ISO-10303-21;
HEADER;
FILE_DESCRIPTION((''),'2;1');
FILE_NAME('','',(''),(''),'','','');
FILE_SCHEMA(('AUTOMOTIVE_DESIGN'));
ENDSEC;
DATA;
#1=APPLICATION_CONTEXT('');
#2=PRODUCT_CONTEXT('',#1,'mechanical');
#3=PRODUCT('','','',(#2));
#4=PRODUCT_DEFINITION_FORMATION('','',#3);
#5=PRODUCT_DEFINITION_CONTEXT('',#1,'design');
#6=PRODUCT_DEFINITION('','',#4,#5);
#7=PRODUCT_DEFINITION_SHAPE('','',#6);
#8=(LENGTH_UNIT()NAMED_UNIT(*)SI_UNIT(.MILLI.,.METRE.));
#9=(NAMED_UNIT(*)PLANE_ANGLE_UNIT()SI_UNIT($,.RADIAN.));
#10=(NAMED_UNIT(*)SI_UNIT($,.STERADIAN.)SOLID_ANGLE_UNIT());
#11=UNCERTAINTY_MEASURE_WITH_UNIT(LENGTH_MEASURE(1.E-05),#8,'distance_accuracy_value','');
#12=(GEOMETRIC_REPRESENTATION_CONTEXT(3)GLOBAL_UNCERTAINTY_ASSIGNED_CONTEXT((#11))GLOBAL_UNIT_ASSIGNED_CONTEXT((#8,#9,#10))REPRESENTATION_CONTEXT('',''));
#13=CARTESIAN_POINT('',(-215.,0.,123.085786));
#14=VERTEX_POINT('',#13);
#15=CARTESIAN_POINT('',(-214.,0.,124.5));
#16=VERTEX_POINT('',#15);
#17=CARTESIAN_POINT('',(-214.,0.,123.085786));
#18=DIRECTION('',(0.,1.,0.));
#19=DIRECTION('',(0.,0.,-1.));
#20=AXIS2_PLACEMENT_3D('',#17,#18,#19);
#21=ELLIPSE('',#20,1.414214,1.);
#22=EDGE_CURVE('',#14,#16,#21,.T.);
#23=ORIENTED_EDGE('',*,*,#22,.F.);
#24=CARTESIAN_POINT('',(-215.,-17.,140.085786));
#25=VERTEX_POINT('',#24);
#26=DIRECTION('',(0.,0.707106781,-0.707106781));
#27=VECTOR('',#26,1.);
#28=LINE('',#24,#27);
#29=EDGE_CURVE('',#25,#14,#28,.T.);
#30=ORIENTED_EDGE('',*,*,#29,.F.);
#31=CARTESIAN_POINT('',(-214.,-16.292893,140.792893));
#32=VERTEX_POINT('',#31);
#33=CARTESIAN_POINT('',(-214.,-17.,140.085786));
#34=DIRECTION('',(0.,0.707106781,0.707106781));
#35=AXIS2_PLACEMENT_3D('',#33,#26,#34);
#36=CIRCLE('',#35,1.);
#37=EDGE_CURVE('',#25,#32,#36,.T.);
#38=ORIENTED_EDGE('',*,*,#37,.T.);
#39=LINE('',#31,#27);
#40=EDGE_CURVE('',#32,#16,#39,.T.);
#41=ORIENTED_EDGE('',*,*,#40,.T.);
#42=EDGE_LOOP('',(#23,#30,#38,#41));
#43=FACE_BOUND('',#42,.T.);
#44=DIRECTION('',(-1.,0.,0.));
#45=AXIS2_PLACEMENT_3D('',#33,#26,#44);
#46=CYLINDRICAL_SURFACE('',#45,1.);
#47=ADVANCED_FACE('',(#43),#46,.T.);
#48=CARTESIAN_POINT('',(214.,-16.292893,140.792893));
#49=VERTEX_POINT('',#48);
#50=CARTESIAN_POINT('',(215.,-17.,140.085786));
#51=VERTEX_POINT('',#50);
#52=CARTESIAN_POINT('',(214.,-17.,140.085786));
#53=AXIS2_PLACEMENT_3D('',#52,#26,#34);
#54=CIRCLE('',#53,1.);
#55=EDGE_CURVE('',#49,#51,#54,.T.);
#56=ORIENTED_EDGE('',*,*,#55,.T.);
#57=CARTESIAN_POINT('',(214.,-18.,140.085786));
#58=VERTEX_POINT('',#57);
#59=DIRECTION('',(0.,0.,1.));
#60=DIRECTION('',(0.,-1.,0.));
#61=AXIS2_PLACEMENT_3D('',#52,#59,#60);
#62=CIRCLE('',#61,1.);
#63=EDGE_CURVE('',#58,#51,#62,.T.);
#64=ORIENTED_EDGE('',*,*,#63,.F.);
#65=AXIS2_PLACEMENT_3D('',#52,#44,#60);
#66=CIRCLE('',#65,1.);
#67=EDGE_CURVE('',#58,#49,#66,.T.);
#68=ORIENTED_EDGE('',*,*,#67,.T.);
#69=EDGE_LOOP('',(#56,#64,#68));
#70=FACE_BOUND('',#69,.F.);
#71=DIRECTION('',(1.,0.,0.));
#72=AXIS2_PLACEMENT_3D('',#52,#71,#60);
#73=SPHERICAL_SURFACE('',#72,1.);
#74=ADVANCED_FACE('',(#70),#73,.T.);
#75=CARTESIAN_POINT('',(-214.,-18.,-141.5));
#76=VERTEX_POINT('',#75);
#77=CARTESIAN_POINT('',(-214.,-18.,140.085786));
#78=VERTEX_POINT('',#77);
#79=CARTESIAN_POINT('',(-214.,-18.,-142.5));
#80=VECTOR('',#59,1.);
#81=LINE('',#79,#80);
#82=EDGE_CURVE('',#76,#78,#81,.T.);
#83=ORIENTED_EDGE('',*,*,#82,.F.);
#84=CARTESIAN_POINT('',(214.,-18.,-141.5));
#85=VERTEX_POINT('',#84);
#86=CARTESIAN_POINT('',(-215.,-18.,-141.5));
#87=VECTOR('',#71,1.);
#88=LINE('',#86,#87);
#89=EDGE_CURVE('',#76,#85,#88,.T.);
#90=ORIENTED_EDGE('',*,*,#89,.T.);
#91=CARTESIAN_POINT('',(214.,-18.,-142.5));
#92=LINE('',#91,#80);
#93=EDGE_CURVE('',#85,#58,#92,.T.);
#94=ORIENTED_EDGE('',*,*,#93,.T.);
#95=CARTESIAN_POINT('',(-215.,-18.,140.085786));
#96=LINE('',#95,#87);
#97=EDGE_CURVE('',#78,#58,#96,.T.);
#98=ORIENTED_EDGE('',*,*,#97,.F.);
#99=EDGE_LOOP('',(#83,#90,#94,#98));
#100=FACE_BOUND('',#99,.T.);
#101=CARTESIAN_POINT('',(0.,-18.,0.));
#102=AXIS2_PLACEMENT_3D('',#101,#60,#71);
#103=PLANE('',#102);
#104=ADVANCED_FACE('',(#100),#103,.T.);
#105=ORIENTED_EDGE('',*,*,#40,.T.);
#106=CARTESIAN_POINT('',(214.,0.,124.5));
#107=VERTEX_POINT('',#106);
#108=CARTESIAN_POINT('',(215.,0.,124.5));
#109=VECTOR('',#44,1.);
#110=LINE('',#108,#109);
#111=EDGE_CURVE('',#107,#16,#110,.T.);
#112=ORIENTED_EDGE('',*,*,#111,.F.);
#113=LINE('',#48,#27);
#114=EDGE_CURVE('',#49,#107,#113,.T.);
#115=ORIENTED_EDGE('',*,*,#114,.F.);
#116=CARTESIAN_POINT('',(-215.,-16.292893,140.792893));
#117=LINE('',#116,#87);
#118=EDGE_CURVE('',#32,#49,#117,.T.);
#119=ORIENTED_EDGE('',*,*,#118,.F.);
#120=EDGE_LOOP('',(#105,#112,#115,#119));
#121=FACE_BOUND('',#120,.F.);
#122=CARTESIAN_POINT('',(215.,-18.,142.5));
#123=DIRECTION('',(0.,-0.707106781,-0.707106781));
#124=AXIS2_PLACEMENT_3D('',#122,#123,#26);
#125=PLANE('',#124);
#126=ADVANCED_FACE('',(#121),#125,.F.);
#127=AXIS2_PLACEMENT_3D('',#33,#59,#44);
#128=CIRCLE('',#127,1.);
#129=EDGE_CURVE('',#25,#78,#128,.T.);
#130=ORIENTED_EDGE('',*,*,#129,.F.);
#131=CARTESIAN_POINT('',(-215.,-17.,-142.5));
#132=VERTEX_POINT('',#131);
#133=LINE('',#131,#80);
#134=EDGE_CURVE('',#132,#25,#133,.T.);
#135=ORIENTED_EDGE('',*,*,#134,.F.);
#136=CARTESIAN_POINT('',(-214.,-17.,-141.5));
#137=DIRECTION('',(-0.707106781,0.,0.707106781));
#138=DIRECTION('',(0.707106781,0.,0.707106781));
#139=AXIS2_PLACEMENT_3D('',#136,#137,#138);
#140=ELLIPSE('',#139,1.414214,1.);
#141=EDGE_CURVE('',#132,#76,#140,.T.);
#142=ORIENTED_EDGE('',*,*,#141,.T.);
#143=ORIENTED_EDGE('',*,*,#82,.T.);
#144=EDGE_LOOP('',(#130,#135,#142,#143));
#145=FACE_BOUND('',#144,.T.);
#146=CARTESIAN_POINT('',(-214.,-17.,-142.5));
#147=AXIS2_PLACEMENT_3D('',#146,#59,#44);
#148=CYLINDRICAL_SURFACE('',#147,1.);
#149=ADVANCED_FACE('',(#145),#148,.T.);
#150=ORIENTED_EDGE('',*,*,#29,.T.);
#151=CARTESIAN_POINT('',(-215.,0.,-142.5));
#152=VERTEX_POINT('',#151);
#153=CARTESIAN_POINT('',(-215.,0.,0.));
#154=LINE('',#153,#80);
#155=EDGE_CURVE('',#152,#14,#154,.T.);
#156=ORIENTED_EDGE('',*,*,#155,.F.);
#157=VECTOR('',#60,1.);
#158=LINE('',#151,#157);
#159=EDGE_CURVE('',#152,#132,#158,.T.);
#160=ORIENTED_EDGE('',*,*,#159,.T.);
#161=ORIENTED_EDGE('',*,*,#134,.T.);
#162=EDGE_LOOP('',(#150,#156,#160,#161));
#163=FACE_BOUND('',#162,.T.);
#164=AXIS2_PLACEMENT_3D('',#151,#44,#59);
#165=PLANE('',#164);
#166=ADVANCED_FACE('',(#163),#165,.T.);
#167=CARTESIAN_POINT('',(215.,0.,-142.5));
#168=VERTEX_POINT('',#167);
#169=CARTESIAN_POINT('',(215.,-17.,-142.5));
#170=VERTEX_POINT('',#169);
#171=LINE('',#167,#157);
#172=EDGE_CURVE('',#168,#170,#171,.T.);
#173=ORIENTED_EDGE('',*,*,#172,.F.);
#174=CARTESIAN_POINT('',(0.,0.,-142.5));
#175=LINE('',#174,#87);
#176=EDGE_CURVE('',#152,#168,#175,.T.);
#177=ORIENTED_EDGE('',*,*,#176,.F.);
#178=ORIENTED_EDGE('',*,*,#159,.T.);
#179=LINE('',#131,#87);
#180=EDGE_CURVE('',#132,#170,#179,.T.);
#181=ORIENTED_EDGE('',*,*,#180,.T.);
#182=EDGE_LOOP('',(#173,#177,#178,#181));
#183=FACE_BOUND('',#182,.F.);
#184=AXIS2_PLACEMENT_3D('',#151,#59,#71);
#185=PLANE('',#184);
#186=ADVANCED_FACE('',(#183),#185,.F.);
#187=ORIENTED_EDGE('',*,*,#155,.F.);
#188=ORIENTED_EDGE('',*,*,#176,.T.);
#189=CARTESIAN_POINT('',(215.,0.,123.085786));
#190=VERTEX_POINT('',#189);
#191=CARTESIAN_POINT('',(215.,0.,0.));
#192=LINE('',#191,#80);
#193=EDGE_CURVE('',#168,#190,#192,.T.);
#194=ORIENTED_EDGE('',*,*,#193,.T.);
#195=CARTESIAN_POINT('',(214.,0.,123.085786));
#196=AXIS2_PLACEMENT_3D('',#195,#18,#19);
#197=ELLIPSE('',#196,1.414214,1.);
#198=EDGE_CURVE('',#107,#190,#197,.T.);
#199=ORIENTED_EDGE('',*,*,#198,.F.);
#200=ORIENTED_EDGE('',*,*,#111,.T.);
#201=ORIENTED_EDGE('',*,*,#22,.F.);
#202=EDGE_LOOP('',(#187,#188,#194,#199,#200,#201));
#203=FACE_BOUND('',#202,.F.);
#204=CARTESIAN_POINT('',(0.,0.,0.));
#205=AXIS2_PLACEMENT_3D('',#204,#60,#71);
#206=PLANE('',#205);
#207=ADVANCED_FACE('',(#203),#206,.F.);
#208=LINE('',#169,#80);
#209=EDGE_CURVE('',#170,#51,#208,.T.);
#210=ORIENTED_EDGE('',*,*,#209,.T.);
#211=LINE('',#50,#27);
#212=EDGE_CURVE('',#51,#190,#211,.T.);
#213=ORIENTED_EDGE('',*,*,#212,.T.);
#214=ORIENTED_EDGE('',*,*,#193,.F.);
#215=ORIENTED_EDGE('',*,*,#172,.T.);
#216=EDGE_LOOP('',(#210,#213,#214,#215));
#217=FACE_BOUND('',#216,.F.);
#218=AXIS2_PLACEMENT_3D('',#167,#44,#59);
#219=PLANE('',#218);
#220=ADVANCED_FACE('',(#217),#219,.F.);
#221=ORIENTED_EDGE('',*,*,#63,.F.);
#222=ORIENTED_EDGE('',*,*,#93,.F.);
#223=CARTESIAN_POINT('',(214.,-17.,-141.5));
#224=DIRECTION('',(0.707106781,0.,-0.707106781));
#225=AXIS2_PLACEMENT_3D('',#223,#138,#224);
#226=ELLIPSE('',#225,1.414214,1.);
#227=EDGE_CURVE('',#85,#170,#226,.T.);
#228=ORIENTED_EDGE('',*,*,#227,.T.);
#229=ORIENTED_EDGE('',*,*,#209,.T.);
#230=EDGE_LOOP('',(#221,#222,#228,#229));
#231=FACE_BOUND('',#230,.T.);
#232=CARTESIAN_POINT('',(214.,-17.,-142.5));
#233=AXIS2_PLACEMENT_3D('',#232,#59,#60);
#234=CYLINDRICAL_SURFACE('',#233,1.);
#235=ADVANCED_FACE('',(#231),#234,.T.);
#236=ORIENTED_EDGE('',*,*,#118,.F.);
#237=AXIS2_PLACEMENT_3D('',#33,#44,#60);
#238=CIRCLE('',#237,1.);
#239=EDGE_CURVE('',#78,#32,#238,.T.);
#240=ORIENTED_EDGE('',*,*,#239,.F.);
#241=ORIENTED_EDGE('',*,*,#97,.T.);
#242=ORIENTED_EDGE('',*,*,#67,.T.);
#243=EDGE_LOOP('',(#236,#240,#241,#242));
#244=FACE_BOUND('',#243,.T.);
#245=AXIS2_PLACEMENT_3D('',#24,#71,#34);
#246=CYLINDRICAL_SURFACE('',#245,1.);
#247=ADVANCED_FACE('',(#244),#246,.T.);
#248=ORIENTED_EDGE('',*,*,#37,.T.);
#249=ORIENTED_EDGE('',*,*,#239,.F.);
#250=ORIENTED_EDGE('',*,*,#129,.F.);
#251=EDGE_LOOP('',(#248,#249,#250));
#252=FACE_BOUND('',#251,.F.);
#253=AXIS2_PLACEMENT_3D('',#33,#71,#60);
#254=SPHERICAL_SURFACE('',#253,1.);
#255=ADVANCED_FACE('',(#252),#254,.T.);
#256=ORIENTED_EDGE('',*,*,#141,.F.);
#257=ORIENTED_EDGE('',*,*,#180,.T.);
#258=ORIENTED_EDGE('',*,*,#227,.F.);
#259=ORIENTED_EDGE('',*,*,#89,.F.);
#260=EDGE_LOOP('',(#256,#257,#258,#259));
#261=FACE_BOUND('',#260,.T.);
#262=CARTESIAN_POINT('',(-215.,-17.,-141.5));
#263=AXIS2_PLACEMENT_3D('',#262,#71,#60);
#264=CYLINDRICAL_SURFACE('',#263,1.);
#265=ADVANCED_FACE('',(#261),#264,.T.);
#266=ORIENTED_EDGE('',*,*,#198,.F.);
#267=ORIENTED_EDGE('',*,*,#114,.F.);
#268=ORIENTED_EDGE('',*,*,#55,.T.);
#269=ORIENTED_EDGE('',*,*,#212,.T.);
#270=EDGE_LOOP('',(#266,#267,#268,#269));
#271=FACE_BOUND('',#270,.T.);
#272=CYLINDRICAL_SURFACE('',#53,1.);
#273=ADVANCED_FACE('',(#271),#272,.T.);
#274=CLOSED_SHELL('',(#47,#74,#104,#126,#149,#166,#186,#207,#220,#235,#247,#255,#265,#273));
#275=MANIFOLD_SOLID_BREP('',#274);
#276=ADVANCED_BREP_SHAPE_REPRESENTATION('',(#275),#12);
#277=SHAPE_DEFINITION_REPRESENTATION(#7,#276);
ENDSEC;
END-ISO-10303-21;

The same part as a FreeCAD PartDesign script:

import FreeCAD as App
import Part
import Sketcher


def edges_at(feature, points):
    """Names of the edges that pass closest to the given points."""
    edges = feature.Shape.Edges
    near = lambda p: min(range(len(edges)), key=lambda i: edges[i].distToShape(Part.Vertex(*p))[0])
    return sorted({f"Edge{near(p) + 1}" for p in points})

doc = App.newDocument("Part")
body = doc.addObject("PartDesign::Body", "Body")

# Sketch on XZ plane
sketch1 = body.newObject("Sketcher::SketchObject", "Sketch")
sketch1.AttachmentSupport = (doc.getObject("XZ_Plane"), [""])
sketch1.MapMode = "FlatFace"
sketch1.addGeometry(Part.LineSegment(App.Vector(-215, 142.5, 0), App.Vector(-215, -142.5, 0)), False)
sketch1.addGeometry(Part.LineSegment(App.Vector(-215, -142.5, 0), App.Vector(215, -142.5, 0)), False)
sketch1.addGeometry(Part.LineSegment(App.Vector(215, -142.5, 0), App.Vector(215, 142.5, 0)), False)
sketch1.addGeometry(Part.LineSegment(App.Vector(215, 142.5, 0), App.Vector(-215, 142.5, 0)), False)
sketch1.addConstraint(Sketcher.Constraint("Coincident", 0, 2, 1, 1))
sketch1.addConstraint(Sketcher.Constraint("Coincident", 1, 2, 2, 1))
sketch1.addConstraint(Sketcher.Constraint("Coincident", 2, 2, 3, 1))
sketch1.addConstraint(Sketcher.Constraint("Coincident", 3, 2, 0, 1))
sketch1.addConstraint(Sketcher.Constraint("Vertical", 0))
sketch1.addConstraint(Sketcher.Constraint("Horizontal", 1))
sketch1.addConstraint(Sketcher.Constraint("Vertical", 2))
sketch1.addConstraint(Sketcher.Constraint("Horizontal", 3))
sketch1.addConstraint(Sketcher.Constraint("Symmetric", 0, 2, 2, 2, -1, 1))
sketch1.addConstraint(Sketcher.Constraint("DistanceX", 1, 1, 1, 2, 430.0))
sketch1.addConstraint(Sketcher.Constraint("DistanceY", 0, 2, 0, 1, 285.0))
pad1 = body.newObject("PartDesign::Pad", "Pad")
pad1.Profile = sketch1
pad1.Length = 18

# Sketch on YZ plane
sketch2 = body.newObject("Sketcher::SketchObject", "Sketch001")
sketch2.AttachmentSupport = (doc.getObject("YZ_Plane"), [""])
sketch2.MapMode = "FlatFace"
sketch2.AttachmentOffset = App.Placement(App.Vector(0, 0, 215), App.Rotation())
sketch2.addGeometry(Part.LineSegment(App.Vector(0, 142.5, 0), App.Vector(-18, 142.5, 0)), False)
sketch2.addGeometry(Part.LineSegment(App.Vector(-18, 142.5, 0), App.Vector(0, 124.5, 0)), False)
sketch2.addGeometry(Part.LineSegment(App.Vector(0, 124.5, 0), App.Vector(0, 142.5, 0)), False)
sketch2.addConstraint(Sketcher.Constraint("Coincident", 0, 2, 1, 1))
sketch2.addConstraint(Sketcher.Constraint("Coincident", 1, 2, 2, 1))
sketch2.addConstraint(Sketcher.Constraint("Coincident", 2, 2, 0, 1))
sketch2.addConstraint(Sketcher.Constraint("Horizontal", 0))
sketch2.addConstraint(Sketcher.Constraint("Vertical", 2))
sketch2.addConstraint(Sketcher.Constraint("PointOnObject", 1, 2, -2))
sketch2.addConstraint(Sketcher.Constraint("Equal", 0, 2))
sketch2.addConstraint(Sketcher.Constraint("DistanceX", 0, 2, 0, 1, 18.0))
sketch2.addConstraint(Sketcher.Constraint("DistanceY", -1, 1, 0, 2, 142.5))
pocket1 = body.newObject("PartDesign::Pocket", "Pocket")
pocket1.Profile = sketch2
pocket1.Length = 438
doc.recompute()

fillet = body.newObject("PartDesign::Fillet", "Fillet")
fillet.Base = (pocket1, edges_at(pocket1, [(0, -18, 142.5)]))
fillet.Radius = 1
doc.recompute()

fillet2 = body.newObject("PartDesign::Fillet", "Fillet001")
fillet2.Base = (fillet, edges_at(fillet, [(-215, -18, -1.207), (0, -18, -142.5), (215, -18, -1.207)]))
fillet2.Radius = 1

doc.recompute()
